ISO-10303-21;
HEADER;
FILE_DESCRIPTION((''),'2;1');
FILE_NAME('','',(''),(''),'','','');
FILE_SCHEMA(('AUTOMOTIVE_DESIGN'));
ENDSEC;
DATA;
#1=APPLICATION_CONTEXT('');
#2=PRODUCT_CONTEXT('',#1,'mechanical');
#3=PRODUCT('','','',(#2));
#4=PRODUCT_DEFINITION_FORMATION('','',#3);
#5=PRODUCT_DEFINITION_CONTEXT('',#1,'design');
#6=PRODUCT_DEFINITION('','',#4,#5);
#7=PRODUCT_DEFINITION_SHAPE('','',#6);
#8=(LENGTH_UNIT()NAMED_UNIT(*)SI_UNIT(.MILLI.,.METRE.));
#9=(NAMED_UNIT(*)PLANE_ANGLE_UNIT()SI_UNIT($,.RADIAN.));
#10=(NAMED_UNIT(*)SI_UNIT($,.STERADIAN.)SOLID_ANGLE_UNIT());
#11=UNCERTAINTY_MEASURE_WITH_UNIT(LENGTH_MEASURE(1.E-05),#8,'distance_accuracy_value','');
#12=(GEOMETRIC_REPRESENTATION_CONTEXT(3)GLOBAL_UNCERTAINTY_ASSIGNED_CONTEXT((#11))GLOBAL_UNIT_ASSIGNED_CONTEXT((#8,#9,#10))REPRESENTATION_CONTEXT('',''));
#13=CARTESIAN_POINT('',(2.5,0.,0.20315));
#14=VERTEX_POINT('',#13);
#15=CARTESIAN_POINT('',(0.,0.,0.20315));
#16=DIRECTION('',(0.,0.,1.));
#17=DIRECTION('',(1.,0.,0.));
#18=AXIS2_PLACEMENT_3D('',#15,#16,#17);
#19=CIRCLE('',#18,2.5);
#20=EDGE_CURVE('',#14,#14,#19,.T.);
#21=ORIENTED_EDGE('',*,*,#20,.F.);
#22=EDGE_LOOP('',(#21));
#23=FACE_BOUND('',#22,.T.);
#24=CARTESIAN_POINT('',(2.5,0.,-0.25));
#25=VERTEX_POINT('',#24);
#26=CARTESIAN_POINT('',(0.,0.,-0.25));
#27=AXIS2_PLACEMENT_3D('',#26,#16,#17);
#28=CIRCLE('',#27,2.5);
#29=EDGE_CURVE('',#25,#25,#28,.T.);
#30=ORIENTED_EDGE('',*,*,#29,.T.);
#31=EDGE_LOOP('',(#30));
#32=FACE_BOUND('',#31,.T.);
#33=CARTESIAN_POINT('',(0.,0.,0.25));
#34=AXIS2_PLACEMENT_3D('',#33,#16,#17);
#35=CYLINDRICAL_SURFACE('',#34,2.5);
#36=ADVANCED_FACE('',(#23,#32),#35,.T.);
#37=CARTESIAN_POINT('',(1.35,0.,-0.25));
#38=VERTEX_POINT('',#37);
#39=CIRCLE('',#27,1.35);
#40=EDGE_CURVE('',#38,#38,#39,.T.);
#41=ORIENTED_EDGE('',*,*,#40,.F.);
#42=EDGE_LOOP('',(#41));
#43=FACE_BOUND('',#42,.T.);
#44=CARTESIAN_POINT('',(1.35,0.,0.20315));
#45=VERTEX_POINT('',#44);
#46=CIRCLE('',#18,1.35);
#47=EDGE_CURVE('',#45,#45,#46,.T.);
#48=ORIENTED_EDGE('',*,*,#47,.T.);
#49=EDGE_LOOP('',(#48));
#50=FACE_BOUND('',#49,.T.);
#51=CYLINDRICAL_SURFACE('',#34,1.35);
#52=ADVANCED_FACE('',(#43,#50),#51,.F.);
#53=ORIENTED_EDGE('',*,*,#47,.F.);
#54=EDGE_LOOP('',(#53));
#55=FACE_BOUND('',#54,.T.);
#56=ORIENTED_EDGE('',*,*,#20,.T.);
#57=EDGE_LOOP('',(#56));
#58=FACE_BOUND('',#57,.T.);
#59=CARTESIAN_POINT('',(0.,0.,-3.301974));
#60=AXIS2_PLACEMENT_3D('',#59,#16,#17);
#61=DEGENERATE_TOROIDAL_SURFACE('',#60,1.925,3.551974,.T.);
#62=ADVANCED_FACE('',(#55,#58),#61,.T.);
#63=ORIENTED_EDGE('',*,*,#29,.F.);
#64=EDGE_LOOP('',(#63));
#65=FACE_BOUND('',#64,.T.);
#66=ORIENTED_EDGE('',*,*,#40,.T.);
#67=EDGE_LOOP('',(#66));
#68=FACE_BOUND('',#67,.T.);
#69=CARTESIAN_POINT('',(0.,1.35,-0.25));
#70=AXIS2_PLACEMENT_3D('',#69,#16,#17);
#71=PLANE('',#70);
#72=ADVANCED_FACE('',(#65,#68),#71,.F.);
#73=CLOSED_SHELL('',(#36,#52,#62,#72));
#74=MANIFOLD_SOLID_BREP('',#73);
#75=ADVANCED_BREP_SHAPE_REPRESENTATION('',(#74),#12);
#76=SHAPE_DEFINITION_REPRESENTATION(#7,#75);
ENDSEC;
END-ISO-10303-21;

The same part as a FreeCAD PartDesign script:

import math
import FreeCAD as App
import Part
import Sketcher
Q = App.Units.Quantity

doc = App.newDocument("Part")
body = doc.addObject("PartDesign::Body", "Body")

sketch1 = body.newObject("Sketcher::SketchObject", "Sketch")
sketch1.AttachmentSupport = (doc.getObject("YZ_Plane"), [""])
sketch1.MapMode = "FlatFace"
sketch1.addGeometry([
    Part.LineSegment(App.Vector(2.5, -0.25, 0), App.Vector(2.5, 0.2, 0)),
    Part.ArcOfCircle(Part.Circle(App.Vector(1.93, -3.3, 0), App.Vector(0, 0, 1), 3.55), math.radians(80.68), math.radians(99.32)),
    Part.LineSegment(App.Vector(1.35, 0.2, 0), App.Vector(1.35, -0.25, 0)),
    Part.LineSegment(App.Vector(1.35, -0.25, 0), App.Vector(2.5, -0.25, 0)),
], False)
sketch1.addConstraint([
    Sketcher.Constraint("Coincident", 0, 2, 1, 1),
    Sketcher.Constraint("Coincident", 1, 2, 2, 1),
    Sketcher.Constraint("Coincident", 2, 2, 3, 1),
    Sketcher.Constraint("Coincident", 3, 2, 0, 1),
    Sketcher.Constraint("Vertical", 0),
    Sketcher.Constraint("Vertical", 2),
    Sketcher.Constraint("Horizontal", 3),
    Sketcher.Constraint("Horizontal", 0, 2, 1, 2),
    Sketcher.Constraint("DistanceX", 3, 1, 3, 2, Q("1.15 mm")),
    Sketcher.Constraint("DistanceX", -1, 1, 0, 2, Q("2.5 mm")),
    Sketcher.Constraint("DistanceY", 2, 2, -1, 1, Q("0.25 mm")),
    Sketcher.Constraint("Radius", 1, Q("3.551974 mm")),
    Sketcher.Constraint("DistanceY", 0, 1, 0, 2, Q("0.45315 mm")),
])
revolution = body.newObject("PartDesign::Revolution", "Revolution")
revolution.Profile = sketch1
revolution.ReferenceAxis = (sketch1, ["V_Axis"])
revolution.Angle = 360

doc.recompute()
